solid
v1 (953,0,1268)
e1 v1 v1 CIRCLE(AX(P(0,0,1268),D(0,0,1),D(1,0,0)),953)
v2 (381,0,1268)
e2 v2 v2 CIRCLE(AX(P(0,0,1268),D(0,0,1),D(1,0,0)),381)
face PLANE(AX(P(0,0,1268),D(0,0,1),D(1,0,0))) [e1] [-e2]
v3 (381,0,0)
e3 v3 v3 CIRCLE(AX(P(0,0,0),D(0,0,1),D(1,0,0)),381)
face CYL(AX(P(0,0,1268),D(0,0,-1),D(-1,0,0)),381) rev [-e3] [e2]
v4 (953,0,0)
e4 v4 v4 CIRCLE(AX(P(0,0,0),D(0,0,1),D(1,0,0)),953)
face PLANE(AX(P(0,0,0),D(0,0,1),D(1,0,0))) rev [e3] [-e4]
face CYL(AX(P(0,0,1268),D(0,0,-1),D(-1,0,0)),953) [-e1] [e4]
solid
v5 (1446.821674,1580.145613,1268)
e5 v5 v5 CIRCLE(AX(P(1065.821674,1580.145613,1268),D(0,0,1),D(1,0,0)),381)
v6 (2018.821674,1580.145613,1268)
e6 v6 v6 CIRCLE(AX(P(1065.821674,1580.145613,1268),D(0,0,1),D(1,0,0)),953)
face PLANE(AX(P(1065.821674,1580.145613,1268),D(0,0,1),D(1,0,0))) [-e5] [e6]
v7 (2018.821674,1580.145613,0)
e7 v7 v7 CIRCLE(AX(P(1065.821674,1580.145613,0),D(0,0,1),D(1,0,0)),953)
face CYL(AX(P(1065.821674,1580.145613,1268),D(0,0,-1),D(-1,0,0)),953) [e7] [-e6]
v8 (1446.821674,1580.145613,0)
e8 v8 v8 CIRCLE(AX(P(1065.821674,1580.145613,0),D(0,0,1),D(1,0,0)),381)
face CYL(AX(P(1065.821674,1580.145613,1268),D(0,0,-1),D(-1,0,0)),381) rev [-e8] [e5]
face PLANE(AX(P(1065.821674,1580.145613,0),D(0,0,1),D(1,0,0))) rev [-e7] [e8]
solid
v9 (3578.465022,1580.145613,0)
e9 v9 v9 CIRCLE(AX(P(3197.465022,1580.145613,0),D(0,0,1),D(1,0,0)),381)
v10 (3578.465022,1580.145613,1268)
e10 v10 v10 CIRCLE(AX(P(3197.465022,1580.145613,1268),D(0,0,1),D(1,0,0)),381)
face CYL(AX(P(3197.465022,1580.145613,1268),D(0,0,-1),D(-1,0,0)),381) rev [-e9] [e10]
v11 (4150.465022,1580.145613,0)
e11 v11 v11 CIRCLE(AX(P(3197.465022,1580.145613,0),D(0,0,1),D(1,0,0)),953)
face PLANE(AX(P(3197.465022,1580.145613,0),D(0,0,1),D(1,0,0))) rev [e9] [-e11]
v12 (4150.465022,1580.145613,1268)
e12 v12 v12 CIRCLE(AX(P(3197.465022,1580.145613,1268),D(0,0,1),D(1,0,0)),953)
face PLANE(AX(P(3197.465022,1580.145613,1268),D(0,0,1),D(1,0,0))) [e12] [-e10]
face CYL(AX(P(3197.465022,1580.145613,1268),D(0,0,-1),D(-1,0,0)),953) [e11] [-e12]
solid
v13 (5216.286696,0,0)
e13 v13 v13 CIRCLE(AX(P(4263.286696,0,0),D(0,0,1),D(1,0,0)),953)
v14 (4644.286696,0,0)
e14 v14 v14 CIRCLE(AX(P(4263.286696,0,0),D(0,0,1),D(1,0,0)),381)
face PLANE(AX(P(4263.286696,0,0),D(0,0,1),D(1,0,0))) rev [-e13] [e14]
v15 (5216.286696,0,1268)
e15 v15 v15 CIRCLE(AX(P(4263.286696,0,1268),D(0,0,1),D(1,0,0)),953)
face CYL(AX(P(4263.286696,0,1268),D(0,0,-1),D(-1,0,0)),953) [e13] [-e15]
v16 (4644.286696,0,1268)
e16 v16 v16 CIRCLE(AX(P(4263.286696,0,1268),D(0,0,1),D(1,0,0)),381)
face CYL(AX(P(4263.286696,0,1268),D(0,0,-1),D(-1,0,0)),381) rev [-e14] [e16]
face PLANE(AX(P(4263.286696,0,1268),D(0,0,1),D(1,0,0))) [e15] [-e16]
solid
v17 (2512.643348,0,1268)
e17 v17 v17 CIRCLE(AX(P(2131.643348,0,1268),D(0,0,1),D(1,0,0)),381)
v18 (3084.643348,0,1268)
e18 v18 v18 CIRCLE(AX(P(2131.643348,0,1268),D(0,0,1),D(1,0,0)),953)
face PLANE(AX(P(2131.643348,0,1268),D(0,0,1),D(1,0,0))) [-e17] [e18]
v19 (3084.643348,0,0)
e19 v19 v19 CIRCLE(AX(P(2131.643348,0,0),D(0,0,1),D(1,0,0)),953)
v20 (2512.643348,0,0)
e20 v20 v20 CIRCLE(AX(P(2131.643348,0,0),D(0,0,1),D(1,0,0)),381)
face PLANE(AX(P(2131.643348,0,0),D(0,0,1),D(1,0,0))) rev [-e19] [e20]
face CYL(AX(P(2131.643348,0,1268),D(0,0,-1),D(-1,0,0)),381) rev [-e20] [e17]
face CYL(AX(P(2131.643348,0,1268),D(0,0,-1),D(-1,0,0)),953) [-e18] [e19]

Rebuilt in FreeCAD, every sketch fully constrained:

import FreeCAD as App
import Part
import Sketcher
from FreeCAD import Vector

doc = App.newDocument("Part")
body = doc.addObject("PartDesign::Body", "Body")

# Sketch on XY plane
sketch1 = body.newObject("Sketcher::SketchObject", "Sketch")
sketch1.AttachmentSupport = (doc.getObject("XY_Plane"), [""])
sketch1.MapMode = "FlatFace"
sketch1.addGeometry(Part.Circle(Vector(0, 0, 0), Vector(0, 0, 1), 953), False)
sketch1.addGeometry(Part.Circle(Vector(0, 0, 0), Vector(0, 0, 1), 381), False)
sketch1.addConstraint(Sketcher.Constraint("Coincident", 0, 3, -1, 1))
sketch1.addConstraint(Sketcher.Constraint("Coincident", 1, 3, -1, 1))
sketch1.addConstraint(Sketcher.Constraint("Diameter", 0, 1906.0))
sketch1.addConstraint(Sketcher.Constraint("Diameter", 1, 762.0))
pad1 = body.newObject("PartDesign::Pad", "Pad")
pad1.Profile = sketch1
pad1.Length = 1268
body2 = doc.addObject("PartDesign::Body", "Body001")

# Sketch on XY plane
sketch2 = body2.newObject("Sketcher::SketchObject", "Sketch001")
sketch2.AttachmentSupport = (doc.getObject("XY_Plane001"), [""])
sketch2.MapMode = "FlatFace"
sketch2.addGeometry(Part.Circle(Vector(2132, 0, 0), Vector(0, 0, 1), 953), False)
sketch2.addGeometry(Part.Circle(Vector(2132, 0, 0), Vector(0, 0, 1), 381), False)
sketch2.addConstraint(Sketcher.Constraint("Coincident", 1, 3, 0, 3))
sketch2.addConstraint(Sketcher.Constraint("PointOnObject", 0, 3, -1))
sketch2.addConstraint(Sketcher.Constraint("Diameter", 0, 1906.0))
sketch2.addConstraint(Sketcher.Constraint("Diameter", 1, 762.0))
sketch2.addConstraint(Sketcher.Constraint("DistanceX", -1, 1, 0, 3, 2131.643348))
pad2 = body2.newObject("PartDesign::Pad", "Pad001")
pad2.Profile = sketch2
pad2.Length = 1268
body3 = doc.addObject("PartDesign::Body", "Body002")

# Sketch on XY plane
sketch3 = body3.newObject("Sketcher::SketchObject", "Sketch002")
sketch3.AttachmentSupport = (doc.getObject("XY_Plane002"), [""])
sketch3.MapMode = "FlatFace"
sketch3.addGeometry(Part.Circle(Vector(4263, 0, 0), Vector(0, 0, 1), 953), False)
sketch3.addGeometry(Part.Circle(Vector(4263, 0, 0), Vector(0, 0, 1), 381), False)
sketch3.addConstraint(Sketcher.Constraint("Coincident", 1, 3, 0, 3))
sketch3.addConstraint(Sketcher.Constraint("PointOnObject", 0, 3, -1))
sketch3.addConstraint(Sketcher.Constraint("Diameter", 0, 1906.0))
sketch3.addConstraint(Sketcher.Constraint("Diameter", 1, 762.0))
sketch3.addConstraint(Sketcher.Constraint("DistanceX", -1, 1, 0, 3, 4263.286696))
pad3 = body3.newObject("PartDesign::Pad", "Pad002")
pad3.Profile = sketch3
pad3.Length = 1268
body4 = doc.addObject("PartDesign::Body", "Body003")

# Sketch on XY plane
sketch4 = body4.newObject("Sketcher::SketchObject", "Sketch003")
sketch4.AttachmentSupport = (doc.getObject("XY_Plane003"), [""])
sketch4.MapMode = "FlatFace"
sketch4.addGeometry(Part.Circle(Vector(3197, 1580, 0), Vector(0, 0, 1), 953), False)
sketch4.addGeometry(Part.Circle(Vector(3197, 1580, 0), Vector(0, 0, 1), 381), False)
sketch4.addConstraint(Sketcher.Constraint("Coincident", 1, 3, 0, 3))
sketch4.addConstraint(Sketcher.Constraint("Diameter", 0, 1906.0))
sketch4.addConstraint(Sketcher.Constraint("Diameter", 1, 762.0))
sketch4.addConstraint(Sketcher.Constraint("DistanceX", -1, 1, 0, 3, 3197.465022))
sketch4.addConstraint(Sketcher.Constraint("DistanceY", -1, 1, 0, 3, 1580.145613))
pad4 = body4.newObject("PartDesign::Pad", "Pad003")
pad4.Profile = sketch4
pad4.Length = 1268
body5 = doc.addObject("PartDesign::Body", "Body004")

# Sketch on XY plane
sketch5 = body5.newObject("Sketcher::SketchObject", "Sketch004")
sketch5.AttachmentSupport = (doc.getObject("XY_Plane004"), [""])
sketch5.MapMode = "FlatFace"
sketch5.addGeometry(Part.Circle(Vector(1066, 1580, 0), Vector(0, 0, 1), 953), False)
sketch5.addGeometry(Part.Circle(Vector(1066, 1580, 0), Vector(0, 0, 1), 381), False)
sketch5.addConstraint(Sketcher.Constraint("Coincident", 1, 3, 0, 3))
sketch5.addConstraint(Sketcher.Constraint("Diameter", 0, 1906.0))
sketch5.addConstraint(Sketcher.Constraint("Diameter", 1, 762.0))
sketch5.addConstraint(Sketcher.Constraint("DistanceX", -1, 1, 0, 3, 1065.821674))
sketch5.addConstraint(Sketcher.Constraint("DistanceY", -1, 1, 0, 3, 1580.145613))
pad5 = body5.newObject("PartDesign::Pad", "Pad004")
pad5.Profile = sketch5
pad5.Length = 1268

doc.recompute()
